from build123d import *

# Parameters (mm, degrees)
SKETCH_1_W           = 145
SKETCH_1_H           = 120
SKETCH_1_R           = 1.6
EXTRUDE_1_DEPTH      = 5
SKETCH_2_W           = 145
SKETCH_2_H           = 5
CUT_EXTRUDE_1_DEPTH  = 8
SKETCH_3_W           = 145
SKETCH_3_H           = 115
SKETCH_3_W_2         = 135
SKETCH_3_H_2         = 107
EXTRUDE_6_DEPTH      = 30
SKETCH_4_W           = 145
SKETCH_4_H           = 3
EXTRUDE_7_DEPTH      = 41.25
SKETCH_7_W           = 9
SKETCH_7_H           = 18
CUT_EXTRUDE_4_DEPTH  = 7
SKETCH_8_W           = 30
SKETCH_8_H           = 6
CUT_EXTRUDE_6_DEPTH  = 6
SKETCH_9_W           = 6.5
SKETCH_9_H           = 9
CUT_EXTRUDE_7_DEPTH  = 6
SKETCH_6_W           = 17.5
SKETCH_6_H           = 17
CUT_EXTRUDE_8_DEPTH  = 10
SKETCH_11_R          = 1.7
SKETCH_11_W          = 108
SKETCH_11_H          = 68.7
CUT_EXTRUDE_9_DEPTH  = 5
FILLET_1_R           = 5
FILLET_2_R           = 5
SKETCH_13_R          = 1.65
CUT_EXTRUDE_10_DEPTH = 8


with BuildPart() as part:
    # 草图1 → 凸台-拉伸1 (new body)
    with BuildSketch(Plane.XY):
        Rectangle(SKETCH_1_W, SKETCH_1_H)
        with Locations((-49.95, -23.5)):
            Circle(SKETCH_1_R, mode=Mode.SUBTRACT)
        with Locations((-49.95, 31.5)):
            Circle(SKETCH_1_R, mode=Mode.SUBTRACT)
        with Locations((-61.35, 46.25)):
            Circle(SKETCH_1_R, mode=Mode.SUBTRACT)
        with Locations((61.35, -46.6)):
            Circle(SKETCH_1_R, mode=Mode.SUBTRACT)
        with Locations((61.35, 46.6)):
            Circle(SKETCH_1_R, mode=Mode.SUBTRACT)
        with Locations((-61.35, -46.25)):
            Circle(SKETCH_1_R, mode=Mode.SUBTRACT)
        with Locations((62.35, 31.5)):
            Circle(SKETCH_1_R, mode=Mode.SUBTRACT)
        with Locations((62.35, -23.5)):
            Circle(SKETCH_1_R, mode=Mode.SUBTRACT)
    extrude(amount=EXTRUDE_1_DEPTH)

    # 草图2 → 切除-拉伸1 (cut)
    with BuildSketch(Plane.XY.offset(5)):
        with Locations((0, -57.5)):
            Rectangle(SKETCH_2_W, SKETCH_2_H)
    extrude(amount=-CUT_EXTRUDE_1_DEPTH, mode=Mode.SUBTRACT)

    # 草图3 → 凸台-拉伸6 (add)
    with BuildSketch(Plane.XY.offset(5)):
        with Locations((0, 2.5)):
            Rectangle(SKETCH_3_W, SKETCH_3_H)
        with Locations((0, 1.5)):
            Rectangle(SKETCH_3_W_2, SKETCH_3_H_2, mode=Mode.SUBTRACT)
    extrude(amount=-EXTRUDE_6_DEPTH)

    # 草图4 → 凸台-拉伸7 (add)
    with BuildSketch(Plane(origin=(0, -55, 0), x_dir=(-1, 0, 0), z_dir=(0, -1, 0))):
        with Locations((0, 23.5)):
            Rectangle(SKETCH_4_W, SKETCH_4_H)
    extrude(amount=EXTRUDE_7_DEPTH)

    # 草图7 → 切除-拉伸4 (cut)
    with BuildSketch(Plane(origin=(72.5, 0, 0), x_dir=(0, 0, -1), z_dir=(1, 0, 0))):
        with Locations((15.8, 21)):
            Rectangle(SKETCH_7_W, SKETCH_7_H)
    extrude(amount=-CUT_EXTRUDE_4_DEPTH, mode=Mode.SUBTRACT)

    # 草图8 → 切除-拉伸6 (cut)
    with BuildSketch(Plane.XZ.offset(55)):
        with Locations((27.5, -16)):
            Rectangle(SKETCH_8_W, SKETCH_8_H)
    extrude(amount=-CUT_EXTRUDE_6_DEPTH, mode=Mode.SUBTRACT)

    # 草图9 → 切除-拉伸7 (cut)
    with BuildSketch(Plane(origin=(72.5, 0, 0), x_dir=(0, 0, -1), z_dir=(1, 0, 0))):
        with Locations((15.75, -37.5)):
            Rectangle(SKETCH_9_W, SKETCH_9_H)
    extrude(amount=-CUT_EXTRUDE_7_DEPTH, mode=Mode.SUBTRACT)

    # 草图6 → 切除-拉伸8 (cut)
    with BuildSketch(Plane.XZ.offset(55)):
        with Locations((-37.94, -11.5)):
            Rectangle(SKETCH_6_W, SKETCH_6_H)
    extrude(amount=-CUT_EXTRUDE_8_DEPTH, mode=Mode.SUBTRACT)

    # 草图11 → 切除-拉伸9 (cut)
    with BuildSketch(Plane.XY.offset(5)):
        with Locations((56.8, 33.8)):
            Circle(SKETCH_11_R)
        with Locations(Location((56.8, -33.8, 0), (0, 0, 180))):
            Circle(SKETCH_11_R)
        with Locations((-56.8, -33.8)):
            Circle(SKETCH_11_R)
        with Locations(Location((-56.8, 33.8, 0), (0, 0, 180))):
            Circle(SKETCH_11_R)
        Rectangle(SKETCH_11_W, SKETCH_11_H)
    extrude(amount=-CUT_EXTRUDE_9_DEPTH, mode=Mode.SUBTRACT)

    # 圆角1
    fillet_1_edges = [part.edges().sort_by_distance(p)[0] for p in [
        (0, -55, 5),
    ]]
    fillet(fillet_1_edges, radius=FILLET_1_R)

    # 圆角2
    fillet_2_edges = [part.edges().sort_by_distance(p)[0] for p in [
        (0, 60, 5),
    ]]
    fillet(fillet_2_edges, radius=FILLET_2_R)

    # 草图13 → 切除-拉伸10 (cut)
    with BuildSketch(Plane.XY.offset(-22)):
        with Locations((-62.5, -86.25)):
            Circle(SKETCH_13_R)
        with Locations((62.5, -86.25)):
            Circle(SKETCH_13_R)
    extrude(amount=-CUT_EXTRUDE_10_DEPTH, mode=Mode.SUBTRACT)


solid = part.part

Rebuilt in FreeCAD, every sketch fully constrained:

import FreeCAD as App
import Part
import Sketcher


def edges_at(feature, points):
    """Names of the edges that pass closest to the given points."""
    edges = feature.Shape.Edges
    near = lambda p: min(range(len(edges)), key=lambda i: edges[i].distToShape(Part.Vertex(*p))[0])
    return sorted({f"Edge{near(p) + 1}" for p in points})


def add_polygon(sketch, points):
    """Adds a closed chain of lines whose ends are joined by coincident constraints."""
    first, n = sketch.GeometryCount, len(points)
    for a, b in zip(points, points[1:] + points[:1]):
        sketch.addGeometry(Part.LineSegment(App.Vector(*a, 0), App.Vector(*b, 0)), False)
    for i in range(n):
        sketch.addConstraint(Sketcher.Constraint("Coincident", first + i, 2, first + (i + 1) % n, 1))

doc = App.newDocument("Part")
body = doc.addObject("PartDesign::Body", "Body")

# Sketch on XY plane
sketch1 = doc.addObject("Sketcher::SketchObject", "Sketch")
body.addObject(sketch1)
sketch1.AttachmentSupport = (doc.XY_Plane, [""])
sketch1.MapMode = "FlatFace"
add_polygon(sketch1, [(-72.5, 60), (-72.5, -60), (72.5, -60), (72.5, 60)])  # lines 0-3
sketch1.addGeometry(Part.Circle(App.Vector(-61.4, -46.2, 0), App.Vector(0, 0, 1), 1.6), False)  # 4
sketch1.addGeometry(Part.Circle(App.Vector(-50, -23.5, 0), App.Vector(0, 0, 1), 1.6), False)  # 5
sketch1.addGeometry(Part.Circle(App.Vector(61.4, -46.6, 0), App.Vector(0, 0, 1), 1.6), False)  # 6
sketch1.addGeometry(Part.Circle(App.Vector(62.4, -23.5, 0), App.Vector(0, 0, 1), 1.6), False)  # 7
sketch1.addGeometry(Part.Circle(App.Vector(-50, 31.5, 0), App.Vector(0, 0, 1), 1.6), False)  # 8
sketch1.addGeometry(Part.Circle(App.Vector(-61.4, 46.2, 0), App.Vector(0, 0, 1), 1.6), False)  # 9
sketch1.addGeometry(Part.Circle(App.Vector(62.4, 31.5, 0), App.Vector(0, 0, 1), 1.6), False)  # 10
sketch1.addGeometry(Part.Circle(App.Vector(61.4, 46.6, 0), App.Vector(0, 0, 1), 1.6), False)  # 11
sketch1.addConstraint(Sketcher.Constraint("Vertical", 0))
sketch1.addConstraint(Sketcher.Constraint("Horizontal", 1))
sketch1.addConstraint(Sketcher.Constraint("Vertical", 2))
sketch1.addConstraint(Sketcher.Constraint("Horizontal", 3))
sketch1.addConstraint(Sketcher.Constraint("Equal", 4, 5))
sketch1.addConstraint(Sketcher.Constraint("Equal", 5, 6))
sketch1.addConstraint(Sketcher.Constraint("Equal", 6, 7))
sketch1.addConstraint(Sketcher.Constraint("Equal", 7, 8))
sketch1.addConstraint(Sketcher.Constraint("Equal", 8, 9))
sketch1.addConstraint(Sketcher.Constraint("Equal", 9, 10))
sketch1.addConstraint(Sketcher.Constraint("Equal", 10, 11))
sketch1.addConstraint(Sketcher.Constraint("Symmetric", 0, 2, 2, 2, -1, 1))
sketch1.addConstraint(Sketcher.Constraint("Symmetric", 4, 3, 9, 3, -1))
sketch1.addConstraint(Sketcher.Constraint("Symmetric", 6, 3, 11, 3, -1))
sketch1.addConstraint(Sketcher.Constraint("Horizontal", 5, 3, 7, 3))
sketch1.addConstraint(Sketcher.Constraint("Horizontal", 8, 3, 10, 3))
sketch1.addConstraint(Sketcher.Constraint("Vertical", 5, 3, 8, 3))
sketch1.addConstraint(Sketcher.Constraint("Vertical", 7, 3, 10, 3))
sketch1.addConstraint(Sketcher.Constraint("Diameter", 4, 3.2))
sketch1.addConstraint(Sketcher.Constraint("DistanceX", 1, 1, 1, 2, 145.0))
sketch1.addConstraint(Sketcher.Constraint("DistanceY", 0, 2, 0, 1, 120.0))
sketch1.addConstraint(Sketcher.Constraint("DistanceX", 6, 3, 7, 3, 1.0))
sketch1.addConstraint(Sketcher.Constraint("DistanceY", 5, 3, 8, 3, 55.0))
sketch1.addConstraint(Sketcher.Constraint("DistanceY", 5, 3, -1, 1, 23.5))
sketch1.addConstraint(Sketcher.Constraint("DistanceY", 6, 3, -1, 1, 46.6))
sketch1.addConstraint(Sketcher.Constraint("DistanceX", 4, 3, 5, 3, 11.4))
sketch1.addConstraint(Sketcher.Constraint("DistanceX", 5, 3, 6, 3, 111.3))
sketch1.addConstraint(Sketcher.Constraint("DistanceY", 4, 3, 9, 3, 92.5))
sketch1.addConstraint(Sketcher.Constraint("DistanceX", 4, 3, -1, 1, 61.35))
pad1 = doc.addObject("PartDesign::Pad", "Pad")
body.addObject(pad1)
pad1.Profile = sketch1
pad1.Length = 5

# Sketch on XY plane
sketch2 = doc.addObject("Sketcher::SketchObject", "Sketch001")
body.addObject(sketch2)
sketch2.AttachmentSupport = (doc.XY_Plane, [""])
sketch2.MapMode = "FlatFace"
sketch2.AttachmentOffset = App.Placement(App.Vector(0, 0, 5), App.Rotation())
add_polygon(sketch2, [(-72, -55), (-72, -60), (72, -60), (72, -55)])  # lines 0-3
sketch2.addConstraint(Sketcher.Constraint("Vertical", 0))
sketch2.addConstraint(Sketcher.Constraint("Horizontal", 1))
sketch2.addConstraint(Sketcher.Constraint("Vertical", 2))
sketch2.addConstraint(Sketcher.Constraint("Horizontal", 3))
sketch2.addConstraint(Sketcher.Constraint("DistanceX", 1, 1, 1, 2, 145.0))
sketch2.addConstraint(Sketcher.Constraint("DistanceY", 0, 2, 0, 1, 5.0))
sketch2.addConstraint(Sketcher.Constraint("DistanceY", 0, 2, -1, 1, 60.0))
sketch2.addConstraint(Sketcher.Constraint("DistanceX", 0, 2, -1, 1, 72.5))
pocket1 = doc.addObject("PartDesign::Pocket", "Pocket")
body.addObject(pocket1)
pocket1.Profile = sketch2
pocket1.Length = 8

# Sketch on XY plane
sketch3 = doc.addObject("Sketcher::SketchObject", "Sketch002")
body.addObject(sketch3)
sketch3.AttachmentSupport = (doc.XY_Plane, [""])
sketch3.MapMode = "FlatFace"
sketch3.AttachmentOffset = App.Placement(App.Vector(0, 0, 5), App.Rotation())
add_polygon(sketch3, [(-72, 60), (-72, -55), (72, -55), (72, 60)])  # lines 0-3
add_polygon(sketch3, [(68, -52), (-68, -52), (-68, 55), (68, 55)])  # lines 4-7
sketch3.addConstraint(Sketcher.Constraint("Vertical", 0))
sketch3.addConstraint(Sketcher.Constraint("Horizontal", 1))
sketch3.addConstraint(Sketcher.Constraint("Vertical", 2))
sketch3.addConstraint(Sketcher.Constraint("Horizontal", 3))
sketch3.addConstraint(Sketcher.Constraint("Horizontal", 4))
sketch3.addConstraint(Sketcher.Constraint("Vertical", 5))
sketch3.addConstraint(Sketcher.Constraint("Horizontal", 6))
sketch3.addConstraint(Sketcher.Constraint("Vertical", 7))
sketch3.addConstraint(Sketcher.Constraint("DistanceX", 1, 1, 1, 2, 145.0))
sketch3.addConstraint(Sketcher.Constraint("DistanceX", 4, 2, 4, 1, 135.0))
sketch3.addConstraint(Sketcher.Constraint("DistanceY", 0, 2, 0, 1, 115.0))
sketch3.addConstraint(Sketcher.Constraint("DistanceY", 5, 1, 5, 2, 107.0))
sketch3.addConstraint(Sketcher.Constraint("DistanceY", 0, 2, -1, 1, 55.0))
sketch3.addConstraint(Sketcher.Constraint("DistanceY", 4, 2, -1, 1, 52.0))
sketch3.addConstraint(Sketcher.Constraint("DistanceX", 0, 2, 4, 2, 5.0))
sketch3.addConstraint(Sketcher.Constraint("DistanceX", 0, 2, -1, 1, 72.5))
pad2 = doc.addObject("PartDesign::Pad", "Pad001")
body.addObject(pad2)
pad2.Profile = sketch3
pad2.Length = 30
pad2.Reversed = True

# Sketch on XZ plane
sketch4 = doc.addObject("Sketcher::SketchObject", "Sketch003")
body.addObject(sketch4)
sketch4.AttachmentSupport = (doc.XZ_Plane, [""])
sketch4.MapMode = "FlatFace"
sketch4.AttachmentOffset = App.Placement(App.Vector(0, 0, 55), App.Rotation())
add_polygon(sketch4, [(72.5, -25), (72.5, -22), (-72.5, -22), (-72.5, -25)])  # lines 0-3
sketch4.addConstraint(Sketcher.Constraint("Vertical", 0))
sketch4.addConstraint(Sketcher.Constraint("Horizontal", 1))
sketch4.addConstraint(Sketcher.Constraint("Vertical", 2))
sketch4.addConstraint(Sketcher.Constraint("Horizontal", 3))
sketch4.addConstraint(Sketcher.Constraint("DistanceX", 1, 2, 1, 1, 145.0))
sketch4.addConstraint(Sketcher.Constraint("DistanceY", 0, 1, 0, 2, 3.0))
sketch4.addConstraint(Sketcher.Constraint("DistanceY", 0, 2, -1, 1, 22.0))
sketch4.addConstraint(Sketcher.Constraint("DistanceX", -1, 1, 0, 2, 72.5))
pad3 = doc.addObject("PartDesign::Pad", "Pad002")
body.addObject(pad3)
pad3.Profile = sketch4
pad3.Length = 41.25

# Sketch on YZ plane
sketch5 = doc.addObject("Sketcher::SketchObject", "Sketch004")
body.addObject(sketch5)
sketch5.AttachmentSupport = (doc.YZ_Plane, [""])
sketch5.MapMode = "FlatFace"
sketch5.AttachmentOffset = App.Placement(App.Vector(0, 0, 72.5), App.Rotation())
add_polygon(sketch5, [(30, -11), (12, -11), (12, -20), (30, -20)])  # lines 0-3
sketch5.addConstraint(Sketcher.Constraint("Horizontal", 0))
sketch5.addConstraint(Sketcher.Constraint("Vertical", 1))
sketch5.addConstraint(Sketcher.Constraint("Horizontal", 2))
sketch5.addConstraint(Sketcher.Constraint("Vertical", 3))
sketch5.addConstraint(Sketcher.Constraint("DistanceX", 0, 2, 0, 1, 18.0))
sketch5.addConstraint(Sketcher.Constraint("DistanceY", 1, 2, 1, 1, 9.0))
sketch5.addConstraint(Sketcher.Constraint("DistanceX", -1, 1, 0, 2, 12.0))
sketch5.addConstraint(Sketcher.Constraint("DistanceY", 0, 2, -1, 1, 11.3))
pocket2 = doc.addObject("PartDesign::Pocket", "Pocket001")
body.addObject(pocket2)
pocket2.Profile = sketch5
pocket2.Length = 7

# Sketch on XZ plane
sketch6 = doc.addObject("Sketcher::SketchObject", "Sketch005")
body.addObject(sketch6)
sketch6.AttachmentSupport = (doc.XZ_Plane, [""])
sketch6.MapMode = "FlatFace"
sketch6.AttachmentOffset = App.Placement(App.Vector(0, 0, 55), App.Rotation())
add_polygon(sketch6, [(12, -13), (12, -19), (42, -19), (42, -13)])  # lines 0-3
sketch6.addConstraint(Sketcher.Constraint("Vertical", 0))
sketch6.addConstraint(Sketcher.Constraint("Horizontal", 1))
sketch6.addConstraint(Sketcher.Constraint("Vertical", 2))
sketch6.addConstraint(Sketcher.Constraint("Horizontal", 3))
sketch6.addConstraint(Sketcher.Constraint("DistanceX", 1, 1, 1, 2, 30.0))
sketch6.addConstraint(Sketcher.Constraint("DistanceY", 0, 2, 0, 1, 6.0))
sketch6.addConstraint(Sketcher.Constraint("DistanceY", 0, 2, -1, 1, 19.0))
sketch6.addConstraint(Sketcher.Constraint("DistanceX", -1, 1, 0, 2, 12.5))
pocket3 = doc.addObject("PartDesign::Pocket", "Pocket002")
body.addObject(pocket3)
pocket3.Profile = sketch6
pocket3.Length = 6

# Sketch on YZ plane
sketch7 = doc.addObject("Sketcher::SketchObject", "Sketch006")
body.addObject(sketch7)
sketch7.AttachmentSupport = (doc.YZ_Plane, [""])
sketch7.MapMode = "FlatFace"
sketch7.AttachmentOffset = App.Placement(App.Vector(0, 0, 72.5), App.Rotation())
add_polygon(sketch7, [(-33, -12), (-42, -12), (-42, -19), (-33, -19)])  # lines 0-3
sketch7.addConstraint(Sketcher.Constraint("Horizontal", 0))
sketch7.addConstraint(Sketcher.Constraint("Vertical", 1))
sketch7.addConstraint(Sketcher.Constraint("Horizontal", 2))
sketch7.addConstraint(Sketcher.Constraint("Vertical", 3))
sketch7.addConstraint(Sketcher.Constraint("DistanceX", 0, 2, 0, 1, 9.0))
sketch7.addConstraint(Sketcher.Constraint("DistanceY", 1, 2, 1, 1, 6.5))
sketch7.addConstraint(Sketcher.Constraint("DistanceX", 0, 2, -1, 1, 42.0))
sketch7.addConstraint(Sketcher.Constraint("DistanceY", 1, 2, -1, 1, 19.0))
pocket4 = doc.addObject("PartDesign::Pocket", "Pocket003")
body.addObject(pocket4)
pocket4.Profile = sketch7
pocket4.Length = 6

# Sketch on XZ plane
sketch8 = doc.addObject("Sketcher::SketchObject", "Sketch007")
body.addObject(sketch8)
sketch8.AttachmentSupport = (doc.XZ_Plane, [""])
sketch8.MapMode = "FlatFace"
sketch8.AttachmentOffset = App.Placement(App.Vector(0, 0, 55), App.Rotation())
add_polygon(sketch8, [(-47, -3), (-47, -20), (-29, -20), (-29, -3)])  # lines 0-3
sketch8.addConstraint(Sketcher.Constraint("Vertical", 0))
sketch8.addConstraint(Sketcher.Constraint("Horizontal", 1))
sketch8.addConstraint(Sketcher.Constraint("Vertical", 2))
sketch8.addConstraint(Sketcher.Constraint("Horizontal", 3))
sketch8.addConstraint(Sketcher.Constraint("DistanceY", 0, 2, 0, 1, 17.0))
sketch8.addConstraint(Sketcher.Constraint("DistanceX", 1, 1, 1, 2, 17.5))
sketch8.addConstraint(Sketcher.Constraint("DistanceY", 0, 2, -1, 1, 20.0))
sketch8.addConstraint(Sketcher.Constraint("DistanceX", 0, 2, -1, 1, 46.69))
pocket5 = doc.addObject("PartDesign::Pocket", "Pocket004")
body.addObject(pocket5)
pocket5.Profile = sketch8
pocket5.Length = 10

# Sketch on XY plane
sketch9 = doc.addObject("Sketcher::SketchObject", "Sketch008")
body.addObject(sketch9)
sketch9.AttachmentSupport = (doc.XY_Plane, [""])
sketch9.MapMode = "FlatFace"
sketch9.AttachmentOffset = App.Placement(App.Vector(0, 0, 5), App.Rotation())
sketch9.addGeometry(Part.Circle(App.Vector(56.8, 33.8, 0), App.Vector(0, 0, 1), 1.7), False)  # 0
sketch9.addGeometry(Part.Circle(App.Vector(56.8, -33.8, 0), App.Vector(0, 0, 1), 1.7), False)  # 1
sketch9.addGeometry(Part.Circle(App.Vector(-56.8, -33.8, 0), App.Vector(0, 0, 1), 1.7), False)  # 2
sketch9.addGeometry(Part.Circle(App.Vector(-56.8, 33.8, 0), App.Vector(0, 0, 1), 1.7), False)  # 3
add_polygon(sketch9, [(-54, 34.4), (-54, -34.4), (54, -34.4), (54, 34.4)])  # lines 4-7
sketch9.addConstraint(Sketcher.Constraint("Vertical", 4))
sketch9.addConstraint(Sketcher.Constraint("Horizontal", 5))
sketch9.addConstraint(Sketcher.Constraint("Vertical", 6))
sketch9.addConstraint(Sketcher.Constraint("Horizontal", 7))
sketch9.addConstraint(Sketcher.Constraint("Equal", 0, 1))
sketch9.addConstraint(Sketcher.Constraint("Equal", 1, 2))
sketch9.addConstraint(Sketcher.Constraint("Equal", 2, 3))
sketch9.addConstraint(Sketcher.Constraint("Symmetric", 0, 3, 2, 3, -1, 1))
sketch9.addConstraint(Sketcher.Constraint("Symmetric", 1, 3, 3, 3, -1, 1))
sketch9.addConstraint(Sketcher.Constraint("Symmetric", 4, 2, 6, 2, -1, 1))
sketch9.addConstraint(Sketcher.Constraint("Symmetric", 1, 3, 2, 3, -2))
sketch9.addConstraint(Sketcher.Constraint("Diameter", 0, 3.4))
sketch9.addConstraint(Sketcher.Constraint("DistanceX", 5, 1, 5, 2, 108.0))
sketch9.addConstraint(Sketcher.Constraint("DistanceY", 4, 2, 4, 1, 68.7))
sketch9.addConstraint(Sketcher.Constraint("DistanceX", -1, 1, 0, 3, 56.8))
sketch9.addConstraint(Sketcher.Constraint("DistanceY", -1, 1, 0, 3, 33.8))
pocket6 = doc.addObject("PartDesign::Pocket", "Pocket005")
body.addObject(pocket6)
pocket6.Profile = sketch9
pocket6.Length = 5
doc.recompute()

fillet = doc.addObject("PartDesign::Fillet", "Fillet")
body.addObject(fillet)
fillet.Base = (pocket6, edges_at(pocket6, [(0, -55, 5)]))
fillet.Radius = 5
doc.recompute()

fillet2 = doc.addObject("PartDesign::Fillet", "Fillet001")
body.addObject(fillet2)
fillet2.Base = (fillet, edges_at(fillet, [(0, 60, 5)]))
fillet2.Radius = 5

# Sketch on XY plane
sketch10 = doc.addObject("Sketcher::SketchObject", "Sketch009")
body.addObject(sketch10)
sketch10.AttachmentSupport = (doc.XY_Plane, [""])
sketch10.MapMode = "FlatFace"
sketch10.AttachmentOffset = App.Placement(App.Vector(0, 0, -22), App.Rotation())
sketch10.addGeometry(Part.Circle(App.Vector(-62.5, -86.2, 0), App.Vector(0, 0, 1), 1.6), False)
sketch10.addGeometry(Part.Circle(App.Vector(62.5, -86.2, 0), App.Vector(0, 0, 1), 1.6), False)
sketch10.addConstraint(Sketcher.Constraint("Equal", 0, 1))
sketch10.addConstraint(Sketcher.Constraint("Symmetric", 0, 3, 1, 3, -2))
sketch10.addConstraint(Sketcher.Constraint("Diameter", 0, 3.3))
sketch10.addConstraint(Sketcher.Constraint("DistanceX", 0, 3, 1, 3, 125.0))
sketch10.addConstraint(Sketcher.Constraint("DistanceY", 0, 3, -1, 1, 86.25))
pocket7 = doc.addObject("PartDesign::Pocket", "Pocket006")
body.addObject(pocket7)
pocket7.Profile = sketch10
pocket7.Length = 8

doc.recompute()
